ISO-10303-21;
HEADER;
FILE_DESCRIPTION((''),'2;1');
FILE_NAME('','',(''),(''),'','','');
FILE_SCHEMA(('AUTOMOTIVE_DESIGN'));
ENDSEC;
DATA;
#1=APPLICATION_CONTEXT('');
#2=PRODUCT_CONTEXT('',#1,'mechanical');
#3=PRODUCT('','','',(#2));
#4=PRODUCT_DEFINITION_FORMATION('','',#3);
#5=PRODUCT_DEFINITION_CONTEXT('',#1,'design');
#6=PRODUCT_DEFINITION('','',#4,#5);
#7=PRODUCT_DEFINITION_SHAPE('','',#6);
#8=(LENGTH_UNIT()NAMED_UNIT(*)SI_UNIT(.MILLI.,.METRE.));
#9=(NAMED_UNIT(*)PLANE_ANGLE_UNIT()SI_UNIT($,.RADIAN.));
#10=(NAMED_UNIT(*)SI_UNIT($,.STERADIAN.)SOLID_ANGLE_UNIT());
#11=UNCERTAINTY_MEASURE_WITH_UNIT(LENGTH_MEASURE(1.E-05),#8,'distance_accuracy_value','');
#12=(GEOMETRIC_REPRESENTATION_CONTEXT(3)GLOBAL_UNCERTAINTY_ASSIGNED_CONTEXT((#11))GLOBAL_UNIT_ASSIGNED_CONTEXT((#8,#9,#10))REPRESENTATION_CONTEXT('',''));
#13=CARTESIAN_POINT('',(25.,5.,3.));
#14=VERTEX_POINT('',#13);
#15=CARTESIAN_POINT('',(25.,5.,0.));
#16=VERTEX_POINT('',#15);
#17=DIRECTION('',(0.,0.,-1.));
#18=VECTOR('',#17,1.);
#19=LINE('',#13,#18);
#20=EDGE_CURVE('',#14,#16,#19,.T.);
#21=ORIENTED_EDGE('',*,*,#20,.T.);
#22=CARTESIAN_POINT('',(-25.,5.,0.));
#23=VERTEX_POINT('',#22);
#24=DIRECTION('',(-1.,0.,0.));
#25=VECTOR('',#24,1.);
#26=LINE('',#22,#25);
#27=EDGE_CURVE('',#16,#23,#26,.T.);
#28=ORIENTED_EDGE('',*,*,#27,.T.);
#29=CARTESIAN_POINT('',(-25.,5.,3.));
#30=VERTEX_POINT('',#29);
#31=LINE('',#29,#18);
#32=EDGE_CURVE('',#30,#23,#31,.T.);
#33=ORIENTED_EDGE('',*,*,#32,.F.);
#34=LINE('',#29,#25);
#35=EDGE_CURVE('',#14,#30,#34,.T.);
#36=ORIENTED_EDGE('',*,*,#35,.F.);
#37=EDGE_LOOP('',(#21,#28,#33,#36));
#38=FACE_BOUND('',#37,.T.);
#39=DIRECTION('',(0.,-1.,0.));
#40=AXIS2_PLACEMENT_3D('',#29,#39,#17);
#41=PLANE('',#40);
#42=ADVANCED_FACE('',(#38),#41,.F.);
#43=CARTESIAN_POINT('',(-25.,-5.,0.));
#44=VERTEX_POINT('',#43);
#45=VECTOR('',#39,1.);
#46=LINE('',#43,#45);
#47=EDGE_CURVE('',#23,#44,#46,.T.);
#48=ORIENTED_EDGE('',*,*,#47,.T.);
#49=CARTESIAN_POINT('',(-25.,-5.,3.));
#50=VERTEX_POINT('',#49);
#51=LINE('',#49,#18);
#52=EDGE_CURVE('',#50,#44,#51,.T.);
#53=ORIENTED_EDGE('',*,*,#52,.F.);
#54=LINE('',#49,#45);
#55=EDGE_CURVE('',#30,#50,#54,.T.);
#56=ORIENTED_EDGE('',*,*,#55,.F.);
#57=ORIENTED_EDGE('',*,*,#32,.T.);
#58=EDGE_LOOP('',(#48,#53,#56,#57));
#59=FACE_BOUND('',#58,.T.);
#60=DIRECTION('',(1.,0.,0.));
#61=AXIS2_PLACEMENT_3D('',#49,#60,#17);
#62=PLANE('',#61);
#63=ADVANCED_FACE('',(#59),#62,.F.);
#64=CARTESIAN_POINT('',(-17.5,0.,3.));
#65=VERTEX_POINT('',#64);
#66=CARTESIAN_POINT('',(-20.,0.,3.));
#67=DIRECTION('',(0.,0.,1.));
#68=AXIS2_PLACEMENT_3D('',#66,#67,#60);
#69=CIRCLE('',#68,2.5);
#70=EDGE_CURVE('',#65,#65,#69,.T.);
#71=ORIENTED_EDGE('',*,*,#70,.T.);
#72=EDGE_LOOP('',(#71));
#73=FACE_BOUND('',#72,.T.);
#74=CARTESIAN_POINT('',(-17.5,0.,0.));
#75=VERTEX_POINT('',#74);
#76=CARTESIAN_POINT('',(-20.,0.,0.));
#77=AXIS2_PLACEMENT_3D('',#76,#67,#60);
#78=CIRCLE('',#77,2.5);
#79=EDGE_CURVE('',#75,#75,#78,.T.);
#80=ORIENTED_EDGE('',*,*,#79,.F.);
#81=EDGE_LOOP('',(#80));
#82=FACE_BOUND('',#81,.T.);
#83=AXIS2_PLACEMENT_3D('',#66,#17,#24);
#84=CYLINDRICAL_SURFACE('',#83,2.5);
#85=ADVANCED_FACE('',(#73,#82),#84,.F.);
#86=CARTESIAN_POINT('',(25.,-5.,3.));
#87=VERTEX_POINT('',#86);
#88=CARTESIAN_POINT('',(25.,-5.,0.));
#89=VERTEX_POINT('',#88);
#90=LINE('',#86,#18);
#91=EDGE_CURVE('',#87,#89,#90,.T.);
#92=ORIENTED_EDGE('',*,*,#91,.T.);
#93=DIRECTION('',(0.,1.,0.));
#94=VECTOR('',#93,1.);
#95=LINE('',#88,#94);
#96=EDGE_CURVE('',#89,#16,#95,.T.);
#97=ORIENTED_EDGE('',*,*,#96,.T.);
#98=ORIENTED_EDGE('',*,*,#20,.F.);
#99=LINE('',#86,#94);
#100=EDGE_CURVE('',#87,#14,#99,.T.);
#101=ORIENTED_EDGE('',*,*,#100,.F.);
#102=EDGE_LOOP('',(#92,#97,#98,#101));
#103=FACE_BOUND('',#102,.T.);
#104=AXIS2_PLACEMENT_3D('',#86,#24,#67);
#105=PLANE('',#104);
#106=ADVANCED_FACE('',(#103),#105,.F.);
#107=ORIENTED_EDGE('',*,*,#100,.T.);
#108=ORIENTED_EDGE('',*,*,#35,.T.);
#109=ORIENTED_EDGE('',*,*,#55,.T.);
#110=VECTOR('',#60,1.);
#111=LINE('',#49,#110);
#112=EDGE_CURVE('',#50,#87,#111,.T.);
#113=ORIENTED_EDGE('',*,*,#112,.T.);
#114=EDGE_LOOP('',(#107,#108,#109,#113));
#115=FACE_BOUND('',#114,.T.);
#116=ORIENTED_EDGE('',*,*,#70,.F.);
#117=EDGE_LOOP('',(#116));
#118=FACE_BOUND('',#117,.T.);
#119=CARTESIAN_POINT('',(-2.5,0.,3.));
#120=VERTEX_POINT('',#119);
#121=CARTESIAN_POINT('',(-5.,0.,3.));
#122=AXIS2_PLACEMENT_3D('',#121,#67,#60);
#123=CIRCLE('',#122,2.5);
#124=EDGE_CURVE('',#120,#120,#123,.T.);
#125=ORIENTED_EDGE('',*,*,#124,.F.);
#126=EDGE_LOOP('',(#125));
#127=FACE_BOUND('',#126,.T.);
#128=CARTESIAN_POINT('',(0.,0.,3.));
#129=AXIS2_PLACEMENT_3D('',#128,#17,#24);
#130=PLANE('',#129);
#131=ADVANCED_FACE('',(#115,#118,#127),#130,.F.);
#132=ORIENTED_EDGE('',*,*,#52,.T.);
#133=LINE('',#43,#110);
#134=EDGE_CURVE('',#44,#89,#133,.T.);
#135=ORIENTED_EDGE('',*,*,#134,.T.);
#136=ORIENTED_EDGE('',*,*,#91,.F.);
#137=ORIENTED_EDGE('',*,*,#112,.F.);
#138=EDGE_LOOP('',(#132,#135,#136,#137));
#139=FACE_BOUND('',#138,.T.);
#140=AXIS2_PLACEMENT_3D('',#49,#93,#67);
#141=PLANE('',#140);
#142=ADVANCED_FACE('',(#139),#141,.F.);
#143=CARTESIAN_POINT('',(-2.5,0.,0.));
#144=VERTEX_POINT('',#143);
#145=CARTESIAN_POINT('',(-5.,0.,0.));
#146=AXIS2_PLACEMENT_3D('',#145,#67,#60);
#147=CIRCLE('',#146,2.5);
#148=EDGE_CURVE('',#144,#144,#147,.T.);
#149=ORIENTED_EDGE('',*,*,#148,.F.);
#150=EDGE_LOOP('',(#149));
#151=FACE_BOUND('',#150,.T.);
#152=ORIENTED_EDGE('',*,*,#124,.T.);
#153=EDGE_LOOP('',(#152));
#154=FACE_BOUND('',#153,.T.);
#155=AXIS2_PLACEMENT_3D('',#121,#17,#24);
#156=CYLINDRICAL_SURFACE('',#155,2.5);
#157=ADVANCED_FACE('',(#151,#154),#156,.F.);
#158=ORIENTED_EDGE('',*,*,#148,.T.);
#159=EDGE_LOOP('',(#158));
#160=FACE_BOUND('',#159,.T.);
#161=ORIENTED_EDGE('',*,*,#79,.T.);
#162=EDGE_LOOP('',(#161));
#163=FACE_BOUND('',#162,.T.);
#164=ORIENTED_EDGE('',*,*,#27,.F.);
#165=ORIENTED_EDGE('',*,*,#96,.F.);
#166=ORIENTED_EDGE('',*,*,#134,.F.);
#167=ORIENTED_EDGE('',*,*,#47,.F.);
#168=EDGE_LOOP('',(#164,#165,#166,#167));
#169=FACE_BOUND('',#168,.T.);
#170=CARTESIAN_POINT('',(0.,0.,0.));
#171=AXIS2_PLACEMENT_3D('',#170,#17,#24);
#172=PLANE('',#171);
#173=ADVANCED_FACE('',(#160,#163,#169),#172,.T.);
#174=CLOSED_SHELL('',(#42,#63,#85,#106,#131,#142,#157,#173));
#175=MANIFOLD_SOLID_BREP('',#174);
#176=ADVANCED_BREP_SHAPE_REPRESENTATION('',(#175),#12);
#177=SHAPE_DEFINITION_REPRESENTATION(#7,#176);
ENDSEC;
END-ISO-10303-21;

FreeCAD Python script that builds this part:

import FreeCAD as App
import Part
import Sketcher
Q = App.Units.Quantity


def add_polygon(sketch, points):
    """Adds a closed chain of lines whose ends are joined by coincident constraints."""
    first, n = sketch.GeometryCount, len(points)
    for a, b in zip(points, points[1:] + points[:1]):
        sketch.addGeometry(Part.LineSegment(App.Vector(*a, 0), App.Vector(*b, 0)), False)
    for i in range(n):
        sketch.addConstraint(Sketcher.Constraint("Coincident", first + i, 2, first + (i + 1) % n, 1))

doc = App.newDocument("Part")
params = doc.addObject("Spreadsheet::Sheet", "Params")
for row, (alias, value) in enumerate([
    ("sketch1_diameter", "5 mm"),
    ("sketch1_width", "50 mm"),
    ("sketch1_height", "10 mm"),
    ("pad1_length", "3 mm"),
], start=1):
    params.set(f"A{row}", alias)
    params.set(f"B{row}", "=" + value)
    params.setAlias(f"B{row}", alias)

body = doc.addObject("PartDesign::Body", "Body")

# Sketch on XY plane
sketch1 = body.newObject("Sketcher::SketchObject", "Sketch")
sketch1.AttachmentSupport = (doc.getObject("XY_Plane"), [""])
sketch1.MapMode = "FlatFace"
add_polygon(sketch1, [(-25, 5), (-25, -5), (25, -5), (25, 5)])  # lines 0-3
sketch1.addGeometry(Part.Circle(App.Vector(-20, 0, 0), App.Vector(0, 0, 1), 2.5), False)  # 4
sketch1.addGeometry(Part.Circle(App.Vector(-5, 0, 0), App.Vector(0, 0, 1), 2.5), False)  # 5
sketch1.addConstraint(Sketcher.Constraint("Vertical", 0))
sketch1.addConstraint(Sketcher.Constraint("Horizontal", 1))
sketch1.addConstraint(Sketcher.Constraint("Vertical", 2))
sketch1.addConstraint(Sketcher.Constraint("Horizontal", 3))
sketch1.addConstraint(Sketcher.Constraint("Equal", 4, 5))
sketch1.addConstraint(Sketcher.Constraint("Symmetric", 0, 2, 2, 2, -1, 1))
sketch1.addConstraint(Sketcher.Constraint("PointOnObject", 4, 3, -1))
sketch1.addConstraint(Sketcher.Constraint("PointOnObject", 5, 3, -1))
sketch1.addConstraint(Sketcher.Constraint("Diameter", 4, Q("5 mm")))
sketch1.addConstraint(Sketcher.Constraint("DistanceX", 1, 1, 1, 2, Q("50 mm")))
sketch1.addConstraint(Sketcher.Constraint("DistanceY", 0, 2, 0, 1, Q("10 mm")))
sketch1.addConstraint(Sketcher.Constraint("DistanceX", 4, 3, -1, 1, Q("20 mm")))
sketch1.addConstraint(Sketcher.Constraint("DistanceX", 5, 3, -1, 1, Q("5 mm")))
sketch1.setExpression("Constraints[12]", "Params.sketch1_diameter")
sketch1.setExpression("Constraints[13]", "Params.sketch1_width")
sketch1.setExpression("Constraints[14]", "Params.sketch1_height")
pad1 = body.newObject("PartDesign::Pad", "Pad")
pad1.Profile = sketch1
pad1.setExpression("Length", "Params.pad1_length")

doc.recompute()
